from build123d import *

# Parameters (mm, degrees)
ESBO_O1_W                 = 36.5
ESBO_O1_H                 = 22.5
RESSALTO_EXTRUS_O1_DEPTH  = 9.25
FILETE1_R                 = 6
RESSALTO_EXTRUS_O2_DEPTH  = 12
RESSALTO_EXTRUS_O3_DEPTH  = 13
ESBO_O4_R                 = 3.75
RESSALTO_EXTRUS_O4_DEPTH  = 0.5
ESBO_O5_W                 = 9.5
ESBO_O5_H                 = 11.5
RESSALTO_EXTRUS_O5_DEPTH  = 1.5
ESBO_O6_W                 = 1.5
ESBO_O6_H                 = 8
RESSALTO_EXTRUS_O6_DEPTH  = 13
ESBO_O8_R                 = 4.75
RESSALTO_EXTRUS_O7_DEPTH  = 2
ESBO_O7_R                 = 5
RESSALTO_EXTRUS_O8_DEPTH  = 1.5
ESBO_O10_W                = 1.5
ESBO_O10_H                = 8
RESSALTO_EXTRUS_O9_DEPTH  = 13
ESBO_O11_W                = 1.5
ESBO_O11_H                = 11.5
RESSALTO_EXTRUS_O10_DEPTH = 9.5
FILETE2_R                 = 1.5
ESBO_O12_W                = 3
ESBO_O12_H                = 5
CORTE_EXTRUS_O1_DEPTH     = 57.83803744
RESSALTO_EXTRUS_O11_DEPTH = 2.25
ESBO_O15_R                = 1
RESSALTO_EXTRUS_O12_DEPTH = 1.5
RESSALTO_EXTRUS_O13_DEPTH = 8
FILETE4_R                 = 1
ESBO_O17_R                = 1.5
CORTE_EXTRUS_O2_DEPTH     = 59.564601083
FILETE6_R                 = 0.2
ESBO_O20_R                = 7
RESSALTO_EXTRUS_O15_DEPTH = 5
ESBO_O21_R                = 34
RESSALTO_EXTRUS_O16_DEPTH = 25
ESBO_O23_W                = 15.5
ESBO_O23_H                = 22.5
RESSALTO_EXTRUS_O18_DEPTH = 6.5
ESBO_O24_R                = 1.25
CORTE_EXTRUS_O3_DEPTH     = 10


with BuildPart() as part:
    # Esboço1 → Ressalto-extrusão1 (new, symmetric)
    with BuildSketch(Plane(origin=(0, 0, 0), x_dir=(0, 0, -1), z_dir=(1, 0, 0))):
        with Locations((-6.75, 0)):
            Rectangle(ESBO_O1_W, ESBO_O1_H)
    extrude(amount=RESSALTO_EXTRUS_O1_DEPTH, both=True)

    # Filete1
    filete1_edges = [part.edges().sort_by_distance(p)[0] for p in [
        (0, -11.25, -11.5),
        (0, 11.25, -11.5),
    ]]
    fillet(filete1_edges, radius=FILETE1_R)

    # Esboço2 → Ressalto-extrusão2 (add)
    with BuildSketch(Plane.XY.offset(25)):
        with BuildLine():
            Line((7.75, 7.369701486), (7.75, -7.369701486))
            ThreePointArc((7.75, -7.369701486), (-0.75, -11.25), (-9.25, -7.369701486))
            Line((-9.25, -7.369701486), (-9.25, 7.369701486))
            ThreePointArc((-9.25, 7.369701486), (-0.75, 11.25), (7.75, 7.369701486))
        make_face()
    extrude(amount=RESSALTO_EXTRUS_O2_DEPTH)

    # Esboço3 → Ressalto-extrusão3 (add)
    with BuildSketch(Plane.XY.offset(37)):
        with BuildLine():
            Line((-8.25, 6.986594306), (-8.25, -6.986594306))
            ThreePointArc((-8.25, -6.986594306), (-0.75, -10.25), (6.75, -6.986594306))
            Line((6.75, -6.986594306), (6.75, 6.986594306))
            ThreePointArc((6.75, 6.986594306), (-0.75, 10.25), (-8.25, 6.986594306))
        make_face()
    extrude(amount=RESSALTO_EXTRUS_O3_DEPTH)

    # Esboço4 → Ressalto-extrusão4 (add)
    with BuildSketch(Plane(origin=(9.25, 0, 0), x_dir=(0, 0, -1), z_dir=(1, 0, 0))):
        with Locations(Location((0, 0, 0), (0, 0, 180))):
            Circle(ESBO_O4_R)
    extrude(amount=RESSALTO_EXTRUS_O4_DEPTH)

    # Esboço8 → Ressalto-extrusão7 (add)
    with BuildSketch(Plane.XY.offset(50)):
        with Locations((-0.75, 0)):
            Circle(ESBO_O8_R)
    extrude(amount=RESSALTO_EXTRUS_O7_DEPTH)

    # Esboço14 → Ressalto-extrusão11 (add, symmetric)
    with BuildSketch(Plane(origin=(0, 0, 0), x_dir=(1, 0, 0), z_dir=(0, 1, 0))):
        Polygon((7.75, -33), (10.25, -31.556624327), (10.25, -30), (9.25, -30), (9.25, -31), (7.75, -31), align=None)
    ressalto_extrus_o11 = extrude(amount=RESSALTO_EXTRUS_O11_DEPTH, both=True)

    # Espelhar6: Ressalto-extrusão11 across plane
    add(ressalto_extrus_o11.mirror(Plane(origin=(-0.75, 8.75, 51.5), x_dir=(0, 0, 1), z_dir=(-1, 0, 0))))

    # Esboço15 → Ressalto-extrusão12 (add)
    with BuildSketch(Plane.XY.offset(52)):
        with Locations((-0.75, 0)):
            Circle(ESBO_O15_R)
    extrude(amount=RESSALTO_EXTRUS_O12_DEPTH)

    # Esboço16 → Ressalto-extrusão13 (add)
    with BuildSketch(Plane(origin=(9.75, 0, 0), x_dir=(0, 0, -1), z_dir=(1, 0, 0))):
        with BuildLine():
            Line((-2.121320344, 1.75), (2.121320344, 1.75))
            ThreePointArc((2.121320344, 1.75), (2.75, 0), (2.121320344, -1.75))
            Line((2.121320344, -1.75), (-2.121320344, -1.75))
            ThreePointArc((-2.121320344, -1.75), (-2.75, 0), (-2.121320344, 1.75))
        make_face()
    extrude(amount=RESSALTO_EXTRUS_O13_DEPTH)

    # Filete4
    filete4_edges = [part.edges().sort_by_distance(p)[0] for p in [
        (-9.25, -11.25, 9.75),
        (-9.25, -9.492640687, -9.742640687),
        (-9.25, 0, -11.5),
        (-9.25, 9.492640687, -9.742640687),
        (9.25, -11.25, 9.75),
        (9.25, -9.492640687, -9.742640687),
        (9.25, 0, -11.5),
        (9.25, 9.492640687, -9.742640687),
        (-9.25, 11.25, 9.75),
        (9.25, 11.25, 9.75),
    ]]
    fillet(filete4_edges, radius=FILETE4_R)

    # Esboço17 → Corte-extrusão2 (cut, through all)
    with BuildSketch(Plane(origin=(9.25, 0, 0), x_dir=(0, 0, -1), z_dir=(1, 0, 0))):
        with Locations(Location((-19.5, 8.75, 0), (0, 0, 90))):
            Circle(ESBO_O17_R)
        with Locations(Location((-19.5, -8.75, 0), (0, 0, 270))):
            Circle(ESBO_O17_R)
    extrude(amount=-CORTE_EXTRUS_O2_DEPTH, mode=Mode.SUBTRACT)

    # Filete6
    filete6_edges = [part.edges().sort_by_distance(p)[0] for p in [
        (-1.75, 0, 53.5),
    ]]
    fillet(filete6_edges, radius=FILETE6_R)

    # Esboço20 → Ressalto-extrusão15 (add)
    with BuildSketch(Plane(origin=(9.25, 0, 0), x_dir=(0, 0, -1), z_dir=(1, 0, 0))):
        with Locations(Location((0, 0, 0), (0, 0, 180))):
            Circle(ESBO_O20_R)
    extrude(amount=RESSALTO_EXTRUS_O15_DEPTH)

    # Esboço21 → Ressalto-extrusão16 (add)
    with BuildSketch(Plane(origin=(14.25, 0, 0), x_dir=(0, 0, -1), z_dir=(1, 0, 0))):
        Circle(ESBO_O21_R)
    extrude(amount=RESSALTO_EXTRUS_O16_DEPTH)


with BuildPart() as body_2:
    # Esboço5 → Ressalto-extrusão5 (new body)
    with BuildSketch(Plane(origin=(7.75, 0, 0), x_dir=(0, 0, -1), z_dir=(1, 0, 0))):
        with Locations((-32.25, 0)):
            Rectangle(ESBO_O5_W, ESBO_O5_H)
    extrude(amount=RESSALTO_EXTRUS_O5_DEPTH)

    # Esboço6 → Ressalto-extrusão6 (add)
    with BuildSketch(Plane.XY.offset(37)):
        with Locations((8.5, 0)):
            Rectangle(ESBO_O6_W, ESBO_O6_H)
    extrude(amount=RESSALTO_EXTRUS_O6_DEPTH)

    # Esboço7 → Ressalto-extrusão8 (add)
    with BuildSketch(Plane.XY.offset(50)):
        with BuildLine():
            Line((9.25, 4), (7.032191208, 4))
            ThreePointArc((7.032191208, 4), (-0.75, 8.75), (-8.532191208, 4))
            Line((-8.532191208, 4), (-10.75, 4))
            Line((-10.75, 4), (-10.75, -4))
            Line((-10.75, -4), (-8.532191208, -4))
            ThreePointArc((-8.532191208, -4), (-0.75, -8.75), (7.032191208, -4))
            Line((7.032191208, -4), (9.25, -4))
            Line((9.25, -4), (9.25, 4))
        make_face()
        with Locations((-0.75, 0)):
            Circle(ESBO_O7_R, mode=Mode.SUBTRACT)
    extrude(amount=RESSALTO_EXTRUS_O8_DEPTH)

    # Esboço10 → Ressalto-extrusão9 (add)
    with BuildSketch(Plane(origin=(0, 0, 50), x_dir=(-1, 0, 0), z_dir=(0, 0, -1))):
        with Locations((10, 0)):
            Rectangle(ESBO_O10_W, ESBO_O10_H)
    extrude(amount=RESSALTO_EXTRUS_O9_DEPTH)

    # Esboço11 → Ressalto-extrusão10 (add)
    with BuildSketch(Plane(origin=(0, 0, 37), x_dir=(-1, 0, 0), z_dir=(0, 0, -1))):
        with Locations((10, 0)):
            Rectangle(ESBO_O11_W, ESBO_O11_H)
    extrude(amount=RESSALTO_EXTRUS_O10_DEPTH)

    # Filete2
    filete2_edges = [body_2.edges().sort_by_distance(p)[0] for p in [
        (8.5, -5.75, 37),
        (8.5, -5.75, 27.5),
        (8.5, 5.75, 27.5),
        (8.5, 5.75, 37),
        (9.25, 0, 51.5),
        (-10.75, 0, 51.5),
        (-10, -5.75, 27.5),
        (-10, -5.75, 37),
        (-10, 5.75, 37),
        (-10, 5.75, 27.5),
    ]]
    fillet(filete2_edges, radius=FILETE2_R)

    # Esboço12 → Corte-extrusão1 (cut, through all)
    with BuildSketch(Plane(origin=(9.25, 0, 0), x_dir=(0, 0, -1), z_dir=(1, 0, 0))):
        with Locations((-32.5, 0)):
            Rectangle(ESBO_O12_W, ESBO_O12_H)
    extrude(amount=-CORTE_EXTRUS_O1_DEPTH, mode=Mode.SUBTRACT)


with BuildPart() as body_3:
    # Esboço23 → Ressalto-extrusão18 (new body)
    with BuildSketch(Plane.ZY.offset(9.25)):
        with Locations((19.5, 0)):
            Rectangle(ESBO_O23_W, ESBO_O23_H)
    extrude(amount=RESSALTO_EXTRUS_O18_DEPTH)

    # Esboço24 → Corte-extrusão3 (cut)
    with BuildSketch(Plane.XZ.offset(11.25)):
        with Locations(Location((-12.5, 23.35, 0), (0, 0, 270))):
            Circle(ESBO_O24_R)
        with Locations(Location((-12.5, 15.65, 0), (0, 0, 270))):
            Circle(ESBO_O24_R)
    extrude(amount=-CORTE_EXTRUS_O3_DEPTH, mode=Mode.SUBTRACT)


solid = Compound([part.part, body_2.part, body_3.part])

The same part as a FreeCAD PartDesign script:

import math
import FreeCAD as App
import Part
import Sketcher

V = App.Vector
Q = App.Units.Quantity


def edges_at(feature, points):
    """Names of the edges that pass closest to the given points."""
    edges = feature.Shape.Edges
    near = lambda p: min(range(len(edges)), key=lambda i: edges[i].distToShape(Part.Vertex(*p))[0])
    return sorted({f"Edge{near(p) + 1}" for p in points})

doc = App.newDocument("Part")
body = doc.addObject("PartDesign::Body", "Body")

# Sketch on YZ plane
sketch1 = body.newObject("Sketcher::SketchObject", "Sketch")
sketch1.AttachmentSupport = (doc.getObject("YZ_Plane"), [""])
sketch1.MapMode = "FlatFace"
sketch1.addGeometry([
    Part.LineSegment(V(11, 25, 0), V(-11, 25, 0)),
    Part.LineSegment(V(-11, 25, 0), V(-11, -12, 0)),
    Part.LineSegment(V(-11, -12, 0), V(11, -12, 0)),
    Part.LineSegment(V(11, -12, 0), V(11, 25, 0)),
], False)
sketch1.addConstraint([
    Sketcher.Constraint("Coincident", 0, 2, 1, 1),
    Sketcher.Constraint("Coincident", 1, 2, 2, 1),
    Sketcher.Constraint("Coincident", 2, 2, 3, 1),
    Sketcher.Constraint("Coincident", 3, 2, 0, 1),
    Sketcher.Constraint("Horizontal", 0),
    Sketcher.Constraint("Vertical", 1),
    Sketcher.Constraint("Horizontal", 2),
    Sketcher.Constraint("Vertical", 3),
    Sketcher.Constraint("DistanceX", 0, 2, 0, 1, 22.5),
    Sketcher.Constraint("DistanceY", 1, 2, 1, 1, 36.5),
    Sketcher.Constraint("DistanceY", -1, 1, 0, 2, 25.0),
    Sketcher.Constraint("DistanceX", 0, 2, -1, 1, 11.25),
])
pad1 = body.newObject("PartDesign::Pad", "Pad")
pad1.Profile = sketch1
pad1.Length = 18.5
pad1.Midplane = True
doc.recompute()

fillet = body.newObject("PartDesign::Fillet", "Fillet")
fillet.Base = (pad1, edges_at(pad1, [(0, -11.25, -11.5), (0, 11.25, -11.5)]))
fillet.Radius = 6

# Sketch on XY plane
sketch2 = body.newObject("Sketcher::SketchObject", "Sketch001")
sketch2.AttachmentSupport = (doc.getObject("XY_Plane"), [""])
sketch2.MapMode = "FlatFace"
sketch2.AttachmentOffset = App.Placement(V(0, 0, 25), App.Rotation())
sketch2.addGeometry([
    Part.LineSegment(V(8, -7, 0), V(8, 7, 0)),
    Part.ArcOfCircle(Part.Circle(V(-1, 0, 0), V(0, 0, 1), 11), math.radians(41), math.radians(139)),
    Part.LineSegment(V(-9, 7, 0), V(-9, -7, 0)),
    Part.ArcOfCircle(Part.Circle(V(-1, 0, 0), V(0, 0, 1), 11), math.radians(-139), math.radians(-41)),
], False)
sketch2.addConstraint([
    Sketcher.Constraint("Coincident", 0, 2, 1, 1),
    Sketcher.Constraint("Coincident", 1, 2, 2, 1),
    Sketcher.Constraint("Coincident", 2, 2, 3, 1),
    Sketcher.Constraint("Coincident", 3, 2, 0, 1),
    Sketcher.Constraint("Vertical", 0),
    Sketcher.Constraint("Vertical", 2),
    Sketcher.Constraint("Coincident", 3, 3, 1, 3),
    Sketcher.Constraint("Equal", 1, 3),
    Sketcher.Constraint("PointOnObject", 1, 3, -1),
    Sketcher.Constraint("Horizontal", 0, 2, 1, 2),
    Sketcher.Constraint("Radius", 1, 11.25),
    Sketcher.Constraint("DistanceX", 1, 2, 0, 2, 17.0),
    Sketcher.Constraint("DistanceX", 1, 3, -1, 1, 0.75),
])
pad2 = body.newObject("PartDesign::Pad", "Pad001")
pad2.Profile = sketch2
pad2.Length = 12

# Sketch on XY plane
sketch3 = body.newObject("Sketcher::SketchObject", "Sketch002")
sketch3.AttachmentSupport = (doc.getObject("XY_Plane"), [""])
sketch3.MapMode = "FlatFace"
sketch3.AttachmentOffset = App.Placement(V(0, 0, 37), App.Rotation())
sketch3.addGeometry([
    Part.LineSegment(V(-8, 7, 0), V(-8, -7, 0)),
    Part.ArcOfCircle(Part.Circle(V(-1, 0, 0), V(0, 0, 1), 10), math.radians(-137), math.radians(-43)),
    Part.LineSegment(V(7, -7, 0), V(7, 7, 0)),
    Part.ArcOfCircle(Part.Circle(V(-1, 0, 0), V(0, 0, 1), 10), math.radians(43), math.radians(137)),
], False)
sketch3.addConstraint([
    Sketcher.Constraint("Coincident", 0, 2, 1, 1),
    Sketcher.Constraint("Coincident", 1, 2, 2, 1),
    Sketcher.Constraint("Coincident", 2, 2, 3, 1),
    Sketcher.Constraint("Coincident", 3, 2, 0, 1),
    Sketcher.Constraint("Vertical", 0),
    Sketcher.Constraint("Vertical", 2),
    Sketcher.Constraint("Coincident", 3, 3, 1, 3),
    Sketcher.Constraint("Equal", 1, 3),
    Sketcher.Constraint("PointOnObject", 1, 3, -1),
    Sketcher.Constraint("Horizontal", 0, 2, 1, 2),
    Sketcher.Constraint("Radius", 1, 10.25),
    Sketcher.Constraint("DistanceX", 0, 2, 1, 2, 15.0),
    Sketcher.Constraint("DistanceX", 1, 3, -1, 1, 0.75),
])
pad3 = body.newObject("PartDesign::Pad", "Pad002")
pad3.Profile = sketch3
pad3.Length = 13

# Sketch on YZ plane
sketch4 = body.newObject("Sketcher::SketchObject", "Sketch003")
sketch4.AttachmentSupport = (doc.getObject("YZ_Plane"), [""])
sketch4.MapMode = "FlatFace"
sketch4.AttachmentOffset = App.Placement(V(0, 0, 9.25), App.Rotation())
sketch4.addGeometry(Part.Circle(V(0, 0, 0), V(0, 0, 1), 3.8), False)
sketch4.addConstraint([
    Sketcher.Constraint("Coincident", 0, 3, -1, 1),
    Sketcher.Constraint("Diameter", 0, 7.5),
])
pad4 = body.newObject("PartDesign::Pad", "Pad003")
pad4.Profile = sketch4
pad4.Length = 0.5

# Sketch on XY plane
sketch5 = body.newObject("Sketcher::SketchObject", "Sketch004")
sketch5.AttachmentSupport = (doc.getObject("XY_Plane"), [""])
sketch5.MapMode = "FlatFace"
sketch5.AttachmentOffset = App.Placement(V(0, 0, 50), App.Rotation())
sketch5.addGeometry(Part.Circle(V(-0.8, 0, 0), V(0, 0, 1), 4.8), False)
sketch5.addConstraint([
    Sketcher.Constraint("PointOnObject", 0, 3, -1),
    Sketcher.Constraint("Diameter", 0, 9.5),
    Sketcher.Constraint("DistanceX", 0, 3, -1, 1, 0.75),
])
pad5 = body.newObject("PartDesign::Pad", "Pad004")
pad5.Profile = sketch5
pad5.Length = 2

# Sketch on XZ plane
sketch6 = body.newObject("Sketcher::SketchObject", "Sketch005")
sketch6.AttachmentSupport = (doc.getObject("XZ_Plane"), [""])
sketch6.MapMode = "FlatFace"
sketch6.addGeometry([
    Part.LineSegment(V(7.8, 33, 0), V(10.2, 31.6, 0)),  # 0
    Part.LineSegment(V(10.2, 31.6, 0), V(10.2, 30, 0)),  # 1
    Part.LineSegment(V(10.2, 30, 0), V(9.2, 30, 0)),  # 2
    Part.LineSegment(V(9.2, 30, 0), V(9.2, 31, 0)),  # 3
    Part.LineSegment(V(9.2, 31, 0), V(7.8, 31, 0)),  # 4
    Part.LineSegment(V(7.8, 31, 0), V(7.8, 33, 0)),  # 5
], False)
sketch6.addConstraint([
    Sketcher.Constraint("Coincident", 0, 2, 1, 1),
    Sketcher.Constraint("Coincident", 1, 2, 2, 1),
    Sketcher.Constraint("Coincident", 2, 2, 3, 1),
    Sketcher.Constraint("Coincident", 3, 2, 4, 1),
    Sketcher.Constraint("Coincident", 4, 2, 5, 1),
    Sketcher.Constraint("Coincident", 5, 2, 0, 1),
    Sketcher.Constraint("Vertical", 1),
    Sketcher.Constraint("Horizontal", 2),
    Sketcher.Constraint("Vertical", 3),
    Sketcher.Constraint("Horizontal", 4),
    Sketcher.Constraint("Vertical", 5),
    Sketcher.Constraint("Equal", 2, 3),
    Sketcher.Constraint("DistanceX", 2, 2, 2, 1, 1.0),
    Sketcher.Constraint("DistanceY", 5, 1, 5, 2, 2.0),
    Sketcher.Constraint("Angle", 0, Q("-30 deg")),
    Sketcher.Constraint("DistanceX", 4, 2, 4, 1, 1.5),
    Sketcher.Constraint("DistanceY", -1, 1, 1, 2, 30.0),
    Sketcher.Constraint("DistanceX", -1, 1, 0, 2, 10.25),
])
pad6 = body.newObject("PartDesign::Pad", "Pad005")
pad6.Profile = sketch6
pad6.Length = 4.5
pad6.Midplane = True
doc.recompute()

datumplane = body.newObject("PartDesign::Plane", "DatumPlane")
datumplane.AttachmentSupport = (doc.getObject("YZ_Plane"), [""])
datumplane.MapMode = "FlatFace"
datumplane.AttachmentOffset = App.Placement(V(0, 0, -0.75), App.Rotation())
mirrored = body.newObject("PartDesign::Mirrored", "Mirrored")
mirrored.Originals = [pad6]
mirrored.MirrorPlane = (datumplane, [""])
body.Tip = mirrored

# Sketch on XY plane
sketch7 = body.newObject("Sketcher::SketchObject", "Sketch006")
sketch7.AttachmentSupport = (doc.getObject("XY_Plane"), [""])
sketch7.MapMode = "FlatFace"
sketch7.AttachmentOffset = App.Placement(V(0, 0, 52), App.Rotation())
sketch7.addGeometry(Part.Circle(V(-0.8, 0, 0), V(0, 0, 1), 1), False)
sketch7.addConstraint([
    Sketcher.Constraint("PointOnObject", 0, 3, -1),
    Sketcher.Constraint("Diameter", 0, 2.0),
    Sketcher.Constraint("DistanceX", 0, 3, -1, 1, 0.75),
])
pad7 = body.newObject("PartDesign::Pad", "Pad006")
pad7.Profile = sketch7
pad7.Length = 1.5

# Sketch on YZ plane
sketch8 = body.newObject("Sketcher::SketchObject", "Sketch007")
sketch8.AttachmentSupport = (doc.getObject("YZ_Plane"), [""])
sketch8.MapMode = "FlatFace"
sketch8.AttachmentOffset = App.Placement(V(0, 0, 9.75), App.Rotation())
sketch8.addGeometry([
    Part.LineSegment(V(1.8, -2.1, 0), V(1.8, 2.1, 0)),
    Part.ArcOfCircle(Part.Circle(V(0, 0, 0), V(0, 0, 1), 2.8), math.radians(50), math.radians(130)),
    Part.LineSegment(V(-1.8, 2.1, 0), V(-1.8, -2.1, 0)),
    Part.ArcOfCircle(Part.Circle(V(0, 0, 0), V(0, 0, 1), 2.8), math.radians(-130), math.radians(-50)),
], False)
sketch8.addConstraint([
    Sketcher.Constraint("Coincident", 0, 2, 1, 1),
    Sketcher.Constraint("Coincident", 1, 2, 2, 1),
    Sketcher.Constraint("Coincident", 2, 2, 3, 1),
    Sketcher.Constraint("Coincident", 3, 2, 0, 1),
    Sketcher.Constraint("Vertical", 0),
    Sketcher.Constraint("Vertical", 2),
    Sketcher.Constraint("Coincident", 1, 3, -1, 1),
    Sketcher.Constraint("Coincident", 3, 3, -1, 1),
    Sketcher.Constraint("Equal", 1, 3),
    Sketcher.Constraint("Horizontal", 0, 2, 1, 2),
    Sketcher.Constraint("Radius", 1, 2.75),
    Sketcher.Constraint("DistanceX", 1, 2, 0, 2, 3.5),
])
pad8 = body.newObject("PartDesign::Pad", "Pad007")
pad8.Profile = sketch8
pad8.Length = 8
doc.recompute()

fillet2 = body.newObject("PartDesign::Fillet", "Fillet001")
fillet2.Base = (pad8, edges_at(pad8, [
    (-9.25, -11.25, 9.75),
    (-9.25, -9.493, -9.743),
    (-9.25, 0, -11.5),
    (-9.25, 9.493, -9.743),
    (9.25, -11.25, 9.75),
    (9.25, -9.493, -9.743),
    (9.25, 0, -11.5),
    (9.25, 9.493, -9.743),
    (-9.25, 11.25, 9.75),
    (9.25, 11.25, 9.75),
]))
fillet2.Radius = 1

# Sketch on YZ plane
sketch9 = body.newObject("Sketcher::SketchObject", "Sketch008")
sketch9.AttachmentSupport = (doc.getObject("YZ_Plane"), [""])
sketch9.MapMode = "FlatFace"
sketch9.AttachmentOffset = App.Placement(V(0, 0, 9.25), App.Rotation())
sketch9.addGeometry([
    Part.Circle(V(8.8, 19.5, 0), V(0, 0, 1), 1.5),
    Part.Circle(V(-8.8, 19.5, 0), V(0, 0, 1), 1.5),
], False)
sketch9.addConstraint([
    Sketcher.Constraint("Equal", 0, 1),
    Sketcher.Constraint("Symmetric", 0, 3, 1, 3, -2),
    Sketcher.Constraint("Diameter", 0, 3.0),
    Sketcher.Constraint("DistanceY", -1, 1, 0, 3, 19.5),
    Sketcher.Constraint("DistanceX", 1, 3, 0, 3, 17.5),
])
pocket1 = body.newObject("PartDesign::Pocket", "Pocket")
pocket1.Profile = sketch9
pocket1.Type = "ThroughAll"
doc.recompute()

fillet3 = body.newObject("PartDesign::Fillet", "Fillet002")
fillet3.Base = (pocket1, edges_at(pocket1, [(-1.75, 0, 53.5)]))
fillet3.Radius = 0.2

# Sketch on YZ plane
sketch10 = body.newObject("Sketcher::SketchObject", "Sketch009")
sketch10.AttachmentSupport = (doc.getObject("YZ_Plane"), [""])
sketch10.MapMode = "FlatFace"
sketch10.AttachmentOffset = App.Placement(V(0, 0, 9.25), App.Rotation())
sketch10.addGeometry(Part.Circle(V(0, 0, 0), V(0, 0, 1), 7), False)
sketch10.addConstraint([
    Sketcher.Constraint("Coincident", 0, 3, -1, 1),
    Sketcher.Constraint("Diameter", 0, 14.0),
])
pad9 = body.newObject("PartDesign::Pad", "Pad008")
pad9.Profile = sketch10
pad9.Length = 5

# Sketch on YZ plane
sketch11 = body.newObject("Sketcher::SketchObject", "Sketch010")
sketch11.AttachmentSupport = (doc.getObject("YZ_Plane"), [""])
sketch11.MapMode = "FlatFace"
sketch11.AttachmentOffset = App.Placement(V(0, 0, 14.25), App.Rotation())
sketch11.addGeometry(Part.Circle(V(0, 0, 0), V(0, 0, 1), 34), False)
sketch11.addConstraint([
    Sketcher.Constraint("Coincident", 0, 3, -1, 1),
    Sketcher.Constraint("Diameter", 0, 68.0),
])
pad10 = body.newObject("PartDesign::Pad", "Pad009")
pad10.Profile = sketch11
pad10.Length = 25
body2 = doc.addObject("PartDesign::Body", "Body001")

# Sketch on YZ plane
sketch12 = body2.newObject("Sketcher::SketchObject", "Sketch011")
sketch12.AttachmentSupport = (doc.getObject("YZ_Plane001"), [""])
sketch12.MapMode = "FlatFace"
sketch12.AttachmentOffset = App.Placement(V(0, 0, 7.75), App.Rotation())
sketch12.addGeometry([
    Part.LineSegment(V(6, 37, 0), V(-6, 37, 0)),
    Part.LineSegment(V(-6, 37, 0), V(-6, 28, 0)),
    Part.LineSegment(V(-6, 28, 0), V(6, 28, 0)),
    Part.LineSegment(V(6, 28, 0), V(6, 37, 0)),
], False)
sketch12.addConstraint([
    Sketcher.Constraint("Coincident", 0, 2, 1, 1),
    Sketcher.Constraint("Coincident", 1, 2, 2, 1),
    Sketcher.Constraint("Coincident", 2, 2, 3, 1),
    Sketcher.Constraint("Coincident", 3, 2, 0, 1),
    Sketcher.Constraint("Horizontal", 0),
    Sketcher.Constraint("Vertical", 1),
    Sketcher.Constraint("Horizontal", 2),
    Sketcher.Constraint("Vertical", 3),
    Sketcher.Constraint("DistanceX", 0, 2, 0, 1, 11.5),
    Sketcher.Constraint("DistanceY", 1, 2, 1, 1, 9.5),
    Sketcher.Constraint("DistanceY", -1, 1, 0, 2, 37.0),
    Sketcher.Constraint("DistanceX", 0, 2, -1, 1, 5.75),
])
pad11 = body2.newObject("PartDesign::Pad", "Pad010")
pad11.Profile = sketch12
pad11.Length = 1.5

# Sketch on XY plane
sketch13 = body2.newObject("Sketcher::SketchObject", "Sketch012")
sketch13.AttachmentSupport = (doc.getObject("XY_Plane001"), [""])
sketch13.MapMode = "FlatFace"
sketch13.AttachmentOffset = App.Placement(V(0, 0, 37), App.Rotation())
sketch13.addGeometry([
    Part.LineSegment(V(7.8, 4, 0), V(7.8, -4, 0)),
    Part.LineSegment(V(7.8, -4, 0), V(9.2, -4, 0)),
    Part.LineSegment(V(9.2, -4, 0), V(9.2, 4, 0)),
    Part.LineSegment(V(9.2, 4, 0), V(7.8, 4, 0)),
], False)
sketch13.addConstraint([
    Sketcher.Constraint("Coincident", 0, 2, 1, 1),
    Sketcher.Constraint("Coincident", 1, 2, 2, 1),
    Sketcher.Constraint("Coincident", 2, 2, 3, 1),
    Sketcher.Constraint("Coincident", 3, 2, 0, 1),
    Sketcher.Constraint("Vertical", 0),
    Sketcher.Constraint("Horizontal", 1),
    Sketcher.Constraint("Vertical", 2),
    Sketcher.Constraint("Horizontal", 3),
    Sketcher.Constraint("DistanceY", 0, 2, 0, 1, 8.0),
    Sketcher.Constraint("DistanceX", 1, 1, 1, 2, 1.5),
    Sketcher.Constraint("DistanceY", 0, 2, -1, 1, 4.0),
    Sketcher.Constraint("DistanceX", -1, 1, 0, 2, 7.75),
])
pad12 = body2.newObject("PartDesign::Pad", "Pad011")
pad12.Profile = sketch13
pad12.Length = 13

# Sketch on XY plane
sketch14 = body2.newObject("Sketcher::SketchObject", "Sketch013")
sketch14.AttachmentSupport = (doc.getObject("XY_Plane001"), [""])
sketch14.MapMode = "FlatFace"
sketch14.AttachmentOffset = App.Placement(V(0, 0, 50), App.Rotation())
sketch14.addGeometry([
    Part.LineSegment(V(9.2, 4, 0), V(7, 4, 0)),  # 0
    Part.ArcOfCircle(Part.Circle(V(-0.8, 0, 0), V(0, 0, 1), 8.8), math.radians(27), math.radians(153)),  # 1
    Part.LineSegment(V(-8.5, 4, 0), V(-10.8, 4, 0)),  # 2
    Part.LineSegment(V(-10.8, 4, 0), V(-10.8, -4, 0)),  # 3
    Part.LineSegment(V(-10.8, -4, 0), V(-8.5, -4, 0)),  # 4
    Part.ArcOfCircle(Part.Circle(V(-0.8, 0, 0), V(0, 0, 1), 8.8), math.radians(-153), math.radians(-27)),  # 5
    Part.LineSegment(V(7, -4, 0), V(9.2, -4, 0)),  # 6
    Part.LineSegment(V(9.2, -4, 0), V(9.2, 4, 0)),  # 7
    Part.Circle(V(-0.8, 0, 0), V(0, 0, 1), 5),  # 8
], False)
sketch14.addConstraint([
    Sketcher.Constraint("Coincident", 0, 2, 1, 1),
    Sketcher.Constraint("Coincident", 1, 2, 2, 1),
    Sketcher.Constraint("Coincident", 2, 2, 3, 1),
    Sketcher.Constraint("Coincident", 3, 2, 4, 1),
    Sketcher.Constraint("Coincident", 4, 2, 5, 1),
    Sketcher.Constraint("Coincident", 5, 2, 6, 1),
    Sketcher.Constraint("Coincident", 6, 2, 7, 1),
    Sketcher.Constraint("Coincident", 7, 2, 0, 1),
    Sketcher.Constraint("Horizontal", 0),
    Sketcher.Constraint("Horizontal", 2),
    Sketcher.Constraint("Vertical", 3),
    Sketcher.Constraint("Horizontal", 4),
    Sketcher.Constraint("Horizontal", 6),
    Sketcher.Constraint("Vertical", 7),
    Sketcher.Constraint("Coincident", 5, 3, 1, 3),
    Sketcher.Constraint("Coincident", 8, 3, 1, 3),
    Sketcher.Constraint("Equal", 1, 5),
    Sketcher.Constraint("Symmetric", 1, 2, 4, 2, -1),
    Sketcher.Constraint("Horizontal", 0, 2, 1, 2),
    Sketcher.Constraint("Horizontal", 4, 2, 5, 2),
    Sketcher.Constraint("Equal", 0, 2),
    Sketcher.Constraint("Diameter", 8, 10.0),
    Sketcher.Constraint("DistanceY", 3, 2, 3, 1, 8.0),
    Sketcher.Constraint("Radius", 1, 8.75),
    Sketcher.Constraint("DistanceX", 2, 2, 1, 3, 10.0),
    Sketcher.Constraint("DistanceX", 1, 3, -1, 1, 0.75),
])
pad13 = body2.newObject("PartDesign::Pad", "Pad012")
pad13.Profile = sketch14
pad13.Length = 1.5

# Sketch on XY plane
sketch15 = body2.newObject("Sketcher::SketchObject", "Sketch014")
sketch15.AttachmentSupport = (doc.getObject("XY_Plane001"), [""])
sketch15.MapMode = "FlatFace"
sketch15.AttachmentOffset = App.Placement(V(0, 0, 50), App.Rotation())
sketch15.addGeometry([
    Part.LineSegment(V(-9.2, 4, 0), V(-9.2, -4, 0)),
    Part.LineSegment(V(-9.2, -4, 0), V(-10.8, -4, 0)),
    Part.LineSegment(V(-10.8, -4, 0), V(-10.8, 4, 0)),
    Part.LineSegment(V(-10.8, 4, 0), V(-9.2, 4, 0)),
], False)
sketch15.addConstraint([
    Sketcher.Constraint("Coincident", 0, 2, 1, 1),
    Sketcher.Constraint("Coincident", 1, 2, 2, 1),
    Sketcher.Constraint("Coincident", 2, 2, 3, 1),
    Sketcher.Constraint("Coincident", 3, 2, 0, 1),
    Sketcher.Constraint("Vertical", 0),
    Sketcher.Constraint("Horizontal", 1),
    Sketcher.Constraint("Vertical", 2),
    Sketcher.Constraint("Horizontal", 3),
    Sketcher.Constraint("DistanceY", 0, 2, 0, 1, 8.0),
    Sketcher.Constraint("DistanceX", 1, 2, 1, 1, 1.5),
    Sketcher.Constraint("DistanceY", 0, 2, -1, 1, 4.0),
    Sketcher.Constraint("DistanceX", 0, 2, -1, 1, 9.25),
])
pad14 = body2.newObject("PartDesign::Pad", "Pad013")
pad14.Profile = sketch15
pad14.Length = 13
pad14.Reversed = True

# Sketch on XY plane
sketch16 = body2.newObject("Sketcher::SketchObject", "Sketch015")
sketch16.AttachmentSupport = (doc.getObject("XY_Plane001"), [""])
sketch16.MapMode = "FlatFace"
sketch16.AttachmentOffset = App.Placement(V(0, 0, 37), App.Rotation())
sketch16.addGeometry([
    Part.LineSegment(V(-9.2, 5.8, 0), V(-9.2, -5.8, 0)),
    Part.LineSegment(V(-9.2, -5.8, 0), V(-10.8, -5.8, 0)),
    Part.LineSegment(V(-10.8, -5.8, 0), V(-10.8, 5.8, 0)),
    Part.LineSegment(V(-10.8, 5.8, 0), V(-9.2, 5.8, 0)),
], False)
sketch16.addConstraint([
    Sketcher.Constraint("Coincident", 0, 2, 1, 1),
    Sketcher.Constraint("Coincident", 1, 2, 2, 1),
    Sketcher.Constraint("Coincident", 2, 2, 3, 1),
    Sketcher.Constraint("Coincident", 3, 2, 0, 1),
    Sketcher.Constraint("Vertical", 0),
    Sketcher.Constraint("Horizontal", 1),
    Sketcher.Constraint("Vertical", 2),
    Sketcher.Constraint("Horizontal", 3),
    Sketcher.Constraint("DistanceX", 1, 2, 1, 1, 1.5),
    Sketcher.Constraint("DistanceY", 0, 2, 0, 1, 11.5),
    Sketcher.Constraint("DistanceX", 0, 2, -1, 1, 9.25),
    Sketcher.Constraint("DistanceY", 0, 2, -1, 1, 5.75),
])
pad15 = body2.newObject("PartDesign::Pad", "Pad014")
pad15.Profile = sketch16
pad15.Length = 9.5
pad15.Reversed = True
doc.recompute()

fillet4 = body2.newObject("PartDesign::Fillet", "Fillet003")
fillet4.Base = (pad15, edges_at(pad15, [
    (8.5, -5.75, 37),
    (8.5, -5.75, 27.5),
    (8.5, 5.75, 27.5),
    (8.5, 5.75, 37),
    (9.25, 0, 51.5),
    (-10.75, 0, 51.5),
    (-10, -5.75, 27.5),
    (-10, -5.75, 37),
    (-10, 5.75, 37),
    (-10, 5.75, 27.5),
]))
fillet4.Radius = 1.5

# Sketch on YZ plane
sketch17 = body2.newObject("Sketcher::SketchObject", "Sketch016")
sketch17.AttachmentSupport = (doc.getObject("YZ_Plane001"), [""])
sketch17.MapMode = "FlatFace"
sketch17.AttachmentOffset = App.Placement(V(0, 0, 9.25), App.Rotation())
sketch17.addGeometry([
    Part.LineSegment(V(2.5, 34, 0), V(-2.5, 34, 0)),
    Part.LineSegment(V(-2.5, 34, 0), V(-2.5, 31, 0)),
    Part.LineSegment(V(-2.5, 31, 0), V(2.5, 31, 0)),
    Part.LineSegment(V(2.5, 31, 0), V(2.5, 34, 0)),
], False)
sketch17.addConstraint([
    Sketcher.Constraint("Coincident", 0, 2, 1, 1),
    Sketcher.Constraint("Coincident", 1, 2, 2, 1),
    Sketcher.Constraint("Coincident", 2, 2, 3, 1),
    Sketcher.Constraint("Coincident", 3, 2, 0, 1),
    Sketcher.Constraint("Horizontal", 0),
    Sketcher.Constraint("Vertical", 1),
    Sketcher.Constraint("Horizontal", 2),
    Sketcher.Constraint("Vertical", 3),
    Sketcher.Constraint("DistanceX", 0, 2, 0, 1, 5.0),
    Sketcher.Constraint("DistanceY", 1, 2, 1, 1, 3.0),
    Sketcher.Constraint("DistanceY", -1, 1, 0, 2, 34.0),
    Sketcher.Constraint("DistanceX", 0, 2, -1, 1, 2.5),
])
pocket2 = body2.newObject("PartDesign::Pocket", "Pocket001")
pocket2.Profile = sketch17
pocket2.Type = "ThroughAll"
body3 = doc.addObject("PartDesign::Body", "Body002")

# Sketch on YZ plane
sketch18 = body3.newObject("Sketcher::SketchObject", "Sketch017")
sketch18.AttachmentSupport = (doc.getObject("YZ_Plane002"), [""])
sketch18.MapMode = "FlatFace"
sketch18.AttachmentOffset = App.Placement(V(0, 0, -9.25), App.Rotation())
sketch18.addGeometry([
    Part.LineSegment(V(11, 12, 0), V(-11, 12, 0)),
    Part.LineSegment(V(-11, 12, 0), V(-11, 27, 0)),
    Part.LineSegment(V(-11, 27, 0), V(11, 27, 0)),
    Part.LineSegment(V(11, 27, 0), V(11, 12, 0)),
], False)
sketch18.addConstraint([
    Sketcher.Constraint("Coincident", 0, 2, 1, 1),
    Sketcher.Constraint("Coincident", 1, 2, 2, 1),
    Sketcher.Constraint("Coincident", 2, 2, 3, 1),
    Sketcher.Constraint("Coincident", 3, 2, 0, 1),
    Sketcher.Constraint("Horizontal", 0),
    Sketcher.Constraint("Vertical", 1),
    Sketcher.Constraint("Horizontal", 2),
    Sketcher.Constraint("Vertical", 3),
    Sketcher.Constraint("DistanceX", 0, 2, 0, 1, 22.5),
    Sketcher.Constraint("DistanceY", 1, 1, 1, 2, 15.5),
    Sketcher.Constraint("DistanceX", 0, 2, -1, 1, 11.25),
    Sketcher.Constraint("DistanceY", -1, 1, 0, 2, 11.75),
])
pad16 = body3.newObject("PartDesign::Pad", "Pad015")
pad16.Profile = sketch18
pad16.Length = 6.5
pad16.Reversed = True

# Sketch on XZ plane
sketch19 = body3.newObject("Sketcher::SketchObject", "Sketch018")
sketch19.AttachmentSupport = (doc.getObject("XZ_Plane002"), [""])
sketch19.MapMode = "FlatFace"
sketch19.AttachmentOffset = App.Placement(V(0, 0, 11.25), App.Rotation())
sketch19.addGeometry([
    Part.Circle(V(-12.5, 23.4, 0), V(0, 0, 1), 1.2),
    Part.Circle(V(-12.5, 15.7, 0), V(0, 0, 1), 1.2),
], False)
sketch19.addConstraint([
    Sketcher.Constraint("Equal", 0, 1),
    Sketcher.Constraint("Vertical", 0, 3, 1, 3),
    Sketcher.Constraint("Diameter", 0, 2.5),
    Sketcher.Constraint("DistanceX", 0, 3, -1, 1, 12.5),
    Sketcher.Constraint("DistanceY", 1, 3, 0, 3, 7.7),
    Sketcher.Constraint("DistanceY", -1, 1, 0, 3, 23.35),
])
pocket3 = body3.newObject("PartDesign::Pocket", "Pocket002")
pocket3.Profile = sketch19
pocket3.Length = 10

doc.recompute()
